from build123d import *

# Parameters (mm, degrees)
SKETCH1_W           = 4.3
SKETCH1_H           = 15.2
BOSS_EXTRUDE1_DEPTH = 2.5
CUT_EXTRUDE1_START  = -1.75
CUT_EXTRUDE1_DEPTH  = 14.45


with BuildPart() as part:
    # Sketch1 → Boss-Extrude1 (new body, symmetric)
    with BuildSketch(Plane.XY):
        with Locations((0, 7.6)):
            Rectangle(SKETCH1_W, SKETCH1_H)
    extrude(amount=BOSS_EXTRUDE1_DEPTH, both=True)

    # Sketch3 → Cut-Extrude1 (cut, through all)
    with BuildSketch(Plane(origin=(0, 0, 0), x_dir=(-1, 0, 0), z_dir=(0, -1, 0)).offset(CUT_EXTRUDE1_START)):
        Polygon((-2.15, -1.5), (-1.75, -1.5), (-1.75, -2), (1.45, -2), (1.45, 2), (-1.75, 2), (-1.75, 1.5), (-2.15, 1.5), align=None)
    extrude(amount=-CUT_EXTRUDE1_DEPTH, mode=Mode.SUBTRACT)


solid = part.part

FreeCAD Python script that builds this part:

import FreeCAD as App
import Part
import Sketcher

V = App.Vector


def add_polygon(sketch, points):
    """Adds a closed chain of lines whose ends are joined by coincident constraints."""
    first, n = sketch.GeometryCount, len(points)
    for a, b in zip(points, points[1:] + points[:1]):
        sketch.addGeometry(Part.LineSegment(App.Vector(*a, 0), App.Vector(*b, 0)), False)
    for i in range(n):
        sketch.addConstraint(Sketcher.Constraint("Coincident", first + i, 2, first + (i + 1) % n, 1))

doc = App.newDocument("Part")
body = doc.addObject("PartDesign::Body", "Body")

# Sketch on XY plane
sketch1 = body.newObject("Sketcher::SketchObject", "Sketch")
sketch1.AttachmentSupport = (doc.getObject("XY_Plane"), [""])
sketch1.MapMode = "FlatFace"
add_polygon(sketch1, [(-2.1, 15.2), (-2.1, 0), (2.1, 0), (2.1, 15.2)])  # lines 0-3
sketch1.addConstraint([
    Sketcher.Constraint("Vertical", 0),
    Sketcher.Constraint("Horizontal", 1),
    Sketcher.Constraint("Vertical", 2),
    Sketcher.Constraint("Horizontal", 3),
    Sketcher.Constraint("Symmetric", 0, 2, 1, 2, -1, 1),
    Sketcher.Constraint("DistanceX", 1, 1, 1, 2, 4.3),
    Sketcher.Constraint("DistanceY", 0, 2, 0, 1, 15.2),
])
pad1 = body.newObject("PartDesign::Pad", "Pad")
pad1.Profile = sketch1
pad1.Length = 5
pad1.Midplane = True

# Sketch on XZ plane
sketch2 = body.newObject("Sketcher::SketchObject", "Sketch001")
sketch2.AttachmentSupport = (doc.getObject("XZ_Plane"), [""])
sketch2.MapMode = "FlatFace"
sketch2.AttachmentOffset = App.Placement(V(0, 0, -1.75), App.Rotation())
add_polygon(sketch2, [(2.15, 1.5), (1.75, 1.5), (1.75, 2), (-1.45, 2), (-1.45, -2), (1.75, -2), (1.75, -1.5), (2.15, -1.5)])  # lines 0-7
sketch2.addConstraint([
    Sketcher.Constraint("Horizontal", 0),
    Sketcher.Constraint("Vertical", 1),
    Sketcher.Constraint("Horizontal", 2),
    Sketcher.Constraint("Vertical", 3),
    Sketcher.Constraint("Horizontal", 4),
    Sketcher.Constraint("Vertical", 5),
    Sketcher.Constraint("Horizontal", 6),
    Sketcher.Constraint("Vertical", 7),
    Sketcher.Constraint("Symmetric", 1, 2, 4, 2, -1),
    Sketcher.Constraint("Equal", 1, 5),
    Sketcher.Constraint("DistanceY", 3, 2, 3, 1, 4.0),
    Sketcher.Constraint("DistanceY", 7, 1, 7, 2, 3.0),
    Sketcher.Constraint("DistanceX", 0, 2, 0, 1, 0.4),
    Sketcher.Constraint("DistanceX", 2, 2, 2, 1, 3.2),
    Sketcher.Constraint("DistanceX", -1, 1, 0, 2, 1.75),
])
pocket1 = body.newObject("PartDesign::Pocket", "Pocket")
pocket1.Profile = sketch2
pocket1.Type = "ThroughAll"

doc.recompute()
